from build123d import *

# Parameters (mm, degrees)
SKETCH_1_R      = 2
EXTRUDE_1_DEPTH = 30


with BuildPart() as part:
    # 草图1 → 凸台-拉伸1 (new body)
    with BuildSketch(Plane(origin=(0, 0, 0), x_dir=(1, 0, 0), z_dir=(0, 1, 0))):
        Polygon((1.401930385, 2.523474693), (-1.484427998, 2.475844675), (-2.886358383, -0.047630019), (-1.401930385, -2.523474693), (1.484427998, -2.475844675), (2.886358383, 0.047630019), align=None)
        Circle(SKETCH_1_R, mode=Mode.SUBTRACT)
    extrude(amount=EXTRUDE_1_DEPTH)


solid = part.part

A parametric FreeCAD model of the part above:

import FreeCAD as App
import Part
import Sketcher
Q = App.Units.Quantity

doc = App.newDocument("Part")
params = doc.addObject("Spreadsheet::Sheet", "Params")
for row, (alias, value) in enumerate([
    ("sketch1_diameter", "4 mm"),
    ("pad1_length", "30 mm"),
], start=1):
    params.set(f"A{row}", alias)
    params.set(f"B{row}", "=" + value)
    params.setAlias(f"B{row}", alias)

body = doc.addObject("PartDesign::Body", "Body")

# Sketch on XZ plane
sketch1 = body.newObject("Sketcher::SketchObject", "Sketch")
sketch1.AttachmentSupport = (doc.getObject("XZ_Plane"), [""])
sketch1.MapMode = "FlatFace"
sketch1.addGeometry([
    Part.LineSegment(App.Vector(1.4, -2.5, 0), App.Vector(-1.5, -2.5, 0)),  # 0
    Part.LineSegment(App.Vector(-1.5, -2.5, 0), App.Vector(-2.9, 0, 0)),  # 1
    Part.LineSegment(App.Vector(-2.9, 0, 0), App.Vector(-1.4, 2.5, 0)),  # 2
    Part.LineSegment(App.Vector(-1.4, 2.5, 0), App.Vector(1.5, 2.5, 0)),  # 3
    Part.LineSegment(App.Vector(1.5, 2.5, 0), App.Vector(2.9, 0, 0)),  # 4
    Part.LineSegment(App.Vector(2.9, 0, 0), App.Vector(1.4, -2.5, 0)),  # 5
    Part.Circle(App.Vector(0, 0, 0), App.Vector(0, 0, 1), 2),  # 6
], False)
sketch1.addConstraint([
    Sketcher.Constraint("Coincident", 0, 2, 1, 1),
    Sketcher.Constraint("Coincident", 1, 2, 2, 1),
    Sketcher.Constraint("Coincident", 2, 2, 3, 1),
    Sketcher.Constraint("Coincident", 3, 2, 4, 1),
    Sketcher.Constraint("Coincident", 4, 2, 5, 1),
    Sketcher.Constraint("Coincident", 5, 2, 0, 1),
    Sketcher.Constraint("Coincident", 6, 3, -1, 1),
    Sketcher.Constraint("Symmetric", 0, 2, 3, 2, -1, 1),
    Sketcher.Constraint("Symmetric", 1, 2, 4, 2, -1, 1),
    Sketcher.Constraint("Symmetric", 2, 2, 5, 2, -1, 1),
    Sketcher.Constraint("Equal", 0, 1),
    Sketcher.Constraint("Equal", 1, 2),
    Sketcher.Constraint("Diameter", 6, Q("4 mm")),
    Sketcher.Constraint("Distance", 0, Q("2.886751 mm")),
    Sketcher.Constraint("DistanceX", 1, 2, -1, 1, Q("2.886358 mm")),
    Sketcher.Constraint("DistanceY", -1, 1, 1, 2, Q("0.04763 mm")),
    Sketcher.Constraint("DistanceX", 2, 2, -1, 1, Q("1.40193 mm")),
])
sketch1.setExpression("Constraints[12]", "Params.sketch1_diameter")
pad1 = body.newObject("PartDesign::Pad", "Pad")
pad1.Profile = sketch1
pad1.setExpression("Length", "Params.pad1_length")
pad1.Reversed = True

doc.recompute()
